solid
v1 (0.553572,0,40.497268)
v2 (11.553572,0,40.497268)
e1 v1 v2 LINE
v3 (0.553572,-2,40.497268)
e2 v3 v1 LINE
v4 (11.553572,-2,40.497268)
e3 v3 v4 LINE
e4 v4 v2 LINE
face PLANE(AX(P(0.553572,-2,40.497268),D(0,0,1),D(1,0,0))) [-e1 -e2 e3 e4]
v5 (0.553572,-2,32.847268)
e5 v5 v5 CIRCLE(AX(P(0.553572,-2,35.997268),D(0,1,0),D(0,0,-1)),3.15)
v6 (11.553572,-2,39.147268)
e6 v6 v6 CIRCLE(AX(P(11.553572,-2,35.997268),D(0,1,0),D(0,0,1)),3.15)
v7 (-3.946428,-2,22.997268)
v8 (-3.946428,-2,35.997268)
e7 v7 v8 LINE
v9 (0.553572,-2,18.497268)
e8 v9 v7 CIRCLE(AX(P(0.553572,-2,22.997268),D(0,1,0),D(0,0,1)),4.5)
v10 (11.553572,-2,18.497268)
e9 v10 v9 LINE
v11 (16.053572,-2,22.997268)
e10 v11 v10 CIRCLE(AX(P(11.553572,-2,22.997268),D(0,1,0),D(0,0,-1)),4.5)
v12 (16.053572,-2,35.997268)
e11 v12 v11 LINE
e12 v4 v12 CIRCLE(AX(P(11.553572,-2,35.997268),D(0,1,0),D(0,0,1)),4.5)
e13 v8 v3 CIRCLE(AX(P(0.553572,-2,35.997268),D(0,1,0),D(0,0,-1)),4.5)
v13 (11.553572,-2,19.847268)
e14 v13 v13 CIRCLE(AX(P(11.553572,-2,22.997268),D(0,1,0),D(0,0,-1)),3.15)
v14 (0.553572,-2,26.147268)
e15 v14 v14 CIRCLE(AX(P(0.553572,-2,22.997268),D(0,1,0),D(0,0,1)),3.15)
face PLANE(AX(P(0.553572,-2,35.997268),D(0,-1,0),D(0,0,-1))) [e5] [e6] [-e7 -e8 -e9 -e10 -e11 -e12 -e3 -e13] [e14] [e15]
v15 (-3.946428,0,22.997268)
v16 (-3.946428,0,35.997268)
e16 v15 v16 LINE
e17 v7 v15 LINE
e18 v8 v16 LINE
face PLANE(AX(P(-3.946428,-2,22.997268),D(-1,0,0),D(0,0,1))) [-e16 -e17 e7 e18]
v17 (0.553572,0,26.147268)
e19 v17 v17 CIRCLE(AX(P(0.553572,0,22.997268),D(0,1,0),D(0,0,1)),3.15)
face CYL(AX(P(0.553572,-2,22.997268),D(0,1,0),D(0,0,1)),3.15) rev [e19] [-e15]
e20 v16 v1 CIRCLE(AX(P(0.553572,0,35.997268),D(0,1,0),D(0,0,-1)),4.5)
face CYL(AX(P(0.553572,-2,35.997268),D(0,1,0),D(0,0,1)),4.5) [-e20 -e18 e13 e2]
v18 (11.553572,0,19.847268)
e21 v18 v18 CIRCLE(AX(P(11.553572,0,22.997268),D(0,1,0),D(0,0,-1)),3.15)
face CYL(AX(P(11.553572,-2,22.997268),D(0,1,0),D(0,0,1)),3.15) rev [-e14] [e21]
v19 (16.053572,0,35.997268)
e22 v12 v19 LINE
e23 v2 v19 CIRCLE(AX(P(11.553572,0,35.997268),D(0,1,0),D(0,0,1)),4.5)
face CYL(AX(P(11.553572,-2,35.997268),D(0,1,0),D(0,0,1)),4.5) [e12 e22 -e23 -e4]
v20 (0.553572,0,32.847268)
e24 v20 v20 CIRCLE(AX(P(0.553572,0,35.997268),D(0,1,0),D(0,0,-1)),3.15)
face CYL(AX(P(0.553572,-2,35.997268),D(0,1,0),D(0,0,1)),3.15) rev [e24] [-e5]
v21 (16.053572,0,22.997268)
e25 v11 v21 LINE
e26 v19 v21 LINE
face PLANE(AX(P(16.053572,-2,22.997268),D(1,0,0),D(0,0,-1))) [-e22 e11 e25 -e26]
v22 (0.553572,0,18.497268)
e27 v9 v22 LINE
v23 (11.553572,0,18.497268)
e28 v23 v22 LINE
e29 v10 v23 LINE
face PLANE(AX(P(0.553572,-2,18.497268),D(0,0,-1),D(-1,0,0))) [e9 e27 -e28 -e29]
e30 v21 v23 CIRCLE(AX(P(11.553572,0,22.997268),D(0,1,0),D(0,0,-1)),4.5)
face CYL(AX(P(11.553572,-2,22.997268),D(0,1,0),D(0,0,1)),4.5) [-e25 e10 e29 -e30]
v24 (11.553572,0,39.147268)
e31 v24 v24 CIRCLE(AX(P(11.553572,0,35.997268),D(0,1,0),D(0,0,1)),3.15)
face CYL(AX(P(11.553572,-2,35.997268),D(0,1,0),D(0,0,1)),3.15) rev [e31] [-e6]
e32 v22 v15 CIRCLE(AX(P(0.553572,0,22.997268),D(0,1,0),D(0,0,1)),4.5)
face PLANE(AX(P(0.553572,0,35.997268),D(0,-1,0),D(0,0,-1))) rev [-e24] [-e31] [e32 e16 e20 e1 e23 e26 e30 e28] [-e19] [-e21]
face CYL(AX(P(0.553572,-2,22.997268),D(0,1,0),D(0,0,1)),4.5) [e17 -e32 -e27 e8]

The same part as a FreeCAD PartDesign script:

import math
import FreeCAD as App
import Part
import Sketcher
from FreeCAD import Vector

doc = App.newDocument("Part")
body = doc.addObject("PartDesign::Body", "Body")

# Sketch on XZ plane
sketch1 = doc.addObject("Sketcher::SketchObject", "Sketch")
body.addObject(sketch1)
sketch1.AttachmentSupport = (doc.XZ_Plane, [""])
sketch1.MapMode = "FlatFace"
sketch1.addGeometry([
    Part.LineSegment(Vector(0.553572, 40.497268, 0), Vector(11.553572, 40.497268, 0)),  # 0
    Part.ArcOfCircle(Part.Circle(Vector(11.553572, 35.997268, 0), Vector(0, 0, 1), 4.5), math.radians(0), math.radians(90)),  # 1
    Part.LineSegment(Vector(16.053572, 35.997268, 0), Vector(16.053572, 22.997268, 0)),  # 2
    Part.ArcOfCircle(Part.Circle(Vector(11.553572, 22.997268, 0), Vector(0, 0, 1), 4.5), math.radians(-90), math.radians(0)),  # 3
    Part.LineSegment(Vector(11.553572, 18.497268, 0), Vector(0.553572, 18.497268, 0)),  # 4
    Part.ArcOfCircle(Part.Circle(Vector(0.553572, 22.997268, 0), Vector(0, 0, 1), 4.5), math.radians(180), math.radians(270)),  # 5
    Part.LineSegment(Vector(-3.946428, 22.997268, 0), Vector(-3.946428, 35.997268, 0)),  # 6
    Part.ArcOfCircle(Part.Circle(Vector(0.553572, 35.997268, 0), Vector(0, 0, 1), 4.5), math.radians(90), math.radians(180)),  # 7
    Part.Circle(Vector(0.553572, 35.997268, 0), Vector(0, 0, 1), 3.15),  # 8
    Part.Circle(Vector(11.553572, 35.997268, 0), Vector(0, 0, 1), 3.15),  # 9
    Part.Circle(Vector(0.553572, 22.997268, 0), Vector(0, 0, 1), 3.15),  # 10
    Part.Circle(Vector(11.553572, 22.997268, 0), Vector(0, 0, 1), 3.15),  # 11
], False)
sketch1.addConstraint([
    Sketcher.Constraint("Tangent", 0, 2, 1, 2),
    Sketcher.Constraint("Tangent", 1, 1, 2, 1),
    Sketcher.Constraint("Tangent", 2, 2, 3, 2),
    Sketcher.Constraint("Tangent", 3, 1, 4, 1),
    Sketcher.Constraint("Tangent", 4, 2, 5, 2),
    Sketcher.Constraint("Tangent", 5, 1, 6, 1),
    Sketcher.Constraint("Tangent", 6, 2, 7, 2),
    Sketcher.Constraint("Tangent", 7, 1, 0, 1),
    Sketcher.Constraint("Horizontal", 0),
    Sketcher.Constraint("Vertical", 2),
    Sketcher.Constraint("Horizontal", 4),
    Sketcher.Constraint("Vertical", 6),
    Sketcher.Constraint("Coincident", 8, 3, 7, 3),
    Sketcher.Constraint("Coincident", 9, 3, 1, 3),
    Sketcher.Constraint("Coincident", 10, 3, 5, 3),
    Sketcher.Constraint("Coincident", 11, 3, 3, 3),
    Sketcher.Constraint("Equal", 1, 3),
    Sketcher.Constraint("Equal", 3, 5),
    Sketcher.Constraint("Equal", 5, 7),
    Sketcher.Constraint("Equal", 8, 9),
    Sketcher.Constraint("Equal", 9, 10),
    Sketcher.Constraint("Equal", 10, 11),
    Sketcher.Constraint("Diameter", 8, 6.3),
    Sketcher.Constraint("Radius", 1, 4.5),
    Sketcher.Constraint("DistanceX", 0, 1, 0, 2, 11.0),
    Sketcher.Constraint("DistanceY", 2, 2, 2, 1, 13.0),
    Sketcher.Constraint("DistanceX", -1, 1, 1, 3, 11.553572),
    Sketcher.Constraint("DistanceY", -1, 1, 1, 3, 35.997268),
])
pad1 = doc.addObject("PartDesign::Pad", "Pad")
body.addObject(pad1)
pad1.Profile = sketch1
pad1.Length = 2

doc.recompute()
